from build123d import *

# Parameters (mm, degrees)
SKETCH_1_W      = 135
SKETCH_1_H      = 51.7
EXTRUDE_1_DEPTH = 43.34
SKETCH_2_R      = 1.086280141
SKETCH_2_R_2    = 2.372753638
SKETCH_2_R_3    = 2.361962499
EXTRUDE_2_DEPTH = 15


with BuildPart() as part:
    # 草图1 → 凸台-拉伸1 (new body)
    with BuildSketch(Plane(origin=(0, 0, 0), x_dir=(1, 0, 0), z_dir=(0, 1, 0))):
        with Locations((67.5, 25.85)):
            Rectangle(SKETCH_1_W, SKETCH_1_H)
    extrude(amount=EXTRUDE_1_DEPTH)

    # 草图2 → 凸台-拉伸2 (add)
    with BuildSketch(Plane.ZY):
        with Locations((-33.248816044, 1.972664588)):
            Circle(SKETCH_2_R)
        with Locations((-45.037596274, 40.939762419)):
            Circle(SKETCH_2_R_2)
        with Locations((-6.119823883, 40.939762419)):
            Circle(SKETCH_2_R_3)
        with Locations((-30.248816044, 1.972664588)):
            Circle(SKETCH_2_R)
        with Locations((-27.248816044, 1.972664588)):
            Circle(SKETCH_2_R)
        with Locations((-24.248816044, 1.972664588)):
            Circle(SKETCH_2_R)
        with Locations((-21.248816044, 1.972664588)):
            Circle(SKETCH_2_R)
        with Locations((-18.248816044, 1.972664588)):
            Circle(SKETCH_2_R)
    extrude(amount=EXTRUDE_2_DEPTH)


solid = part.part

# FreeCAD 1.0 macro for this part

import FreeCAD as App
import Part
import Sketcher
from FreeCAD import Vector


def add_polygon(sketch, points):
    """Adds a closed chain of lines whose ends are joined by coincident constraints."""
    first, n = sketch.GeometryCount, len(points)
    for a, b in zip(points, points[1:] + points[:1]):
        sketch.addGeometry(Part.LineSegment(App.Vector(*a, 0), App.Vector(*b, 0)), False)
    for i in range(n):
        sketch.addConstraint(Sketcher.Constraint("Coincident", first + i, 2, first + (i + 1) % n, 1))

doc = App.newDocument("Part")
body = doc.addObject("PartDesign::Body", "Body")

sketch1 = doc.addObject("Sketcher::SketchObject", "Sketch")
body.addObject(sketch1)
sketch1.AttachmentSupport = (doc.XZ_Plane, [""])
sketch1.MapMode = "FlatFace"
add_polygon(sketch1, [(0, -51.7), (0, 0), (135, 0), (135, -51.7)])
sketch1.addConstraint([
    Sketcher.Constraint("Vertical", 0),
    Sketcher.Constraint("Horizontal", 1),
    Sketcher.Constraint("Vertical", 2),
    Sketcher.Constraint("Horizontal", 3),
    Sketcher.Constraint("Coincident", 0, 2, -1, 1),
    Sketcher.Constraint("DistanceX", 1, 1, 1, 2, 135.0),
    Sketcher.Constraint("DistanceY", 0, 1, 0, 2, 51.7),
])
pad1 = doc.addObject("PartDesign::Pad", "Pad")
body.addObject(pad1)
pad1.Profile = sketch1
pad1.Length = 43.34
pad1.Reversed = True

sketch2 = doc.addObject("Sketcher::SketchObject", "Sketch001")
body.addObject(sketch2)
sketch2.AttachmentSupport = (doc.YZ_Plane, [""])
sketch2.MapMode = "FlatFace"
sketch2.addGeometry([
    Part.Circle(Vector(1.972665, -33.248816, 0), Vector(0, 0, 1), 1.08628),
    Part.Circle(Vector(40.939762, -45.037596, 0), Vector(0, 0, 1), 2.372754),
    Part.Circle(Vector(40.939762, -6.119824, 0), Vector(0, 0, 1), 2.361962),
    Part.Circle(Vector(1.972665, -30.248816, 0), Vector(0, 0, 1), 1.08628),
    Part.Circle(Vector(1.972665, -27.248816, 0), Vector(0, 0, 1), 1.08628),
    Part.Circle(Vector(1.972665, -24.248816, 0), Vector(0, 0, 1), 1.08628),
    Part.Circle(Vector(1.972665, -21.248816, 0), Vector(0, 0, 1), 1.08628),
    Part.Circle(Vector(1.972665, -18.248816, 0), Vector(0, 0, 1), 1.08628),
], False)
sketch2.addConstraint([
    Sketcher.Constraint("Equal", 0, 3),
    Sketcher.Constraint("Equal", 3, 4),
    Sketcher.Constraint("Equal", 4, 5),
    Sketcher.Constraint("Equal", 5, 6),
    Sketcher.Constraint("Equal", 6, 7),
    Sketcher.Constraint("Vertical", 1, 3, 2, 3),
    Sketcher.Constraint("Vertical", 0, 3, 3, 3),
    Sketcher.Constraint("Vertical", 3, 3, 4, 3),
    Sketcher.Constraint("Vertical", 4, 3, 5, 3),
    Sketcher.Constraint("Vertical", 5, 3, 6, 3),
    Sketcher.Constraint("Vertical", 6, 3, 7, 3),
    Sketcher.Constraint("DistanceY", 0, 3, 3, 3, 3.0),
    Sketcher.Constraint("DistanceY", 3, 3, 4, 3, 3.0),
    Sketcher.Constraint("DistanceY", 4, 3, 5, 3, 3.0),
    Sketcher.Constraint("DistanceY", 5, 3, 6, 3, 3.0),
    Sketcher.Constraint("DistanceY", 6, 3, 7, 3, 3.0),
    Sketcher.Constraint("Diameter", 0, 2.17256),
    Sketcher.Constraint("Diameter", 1, 4.745507),
    Sketcher.Constraint("Diameter", 2, 4.723925),
    Sketcher.Constraint("DistanceY", 1, 3, 0, 3, 11.78878),
    Sketcher.Constraint("DistanceX", -1, 1, 0, 3, 1.972665),
    Sketcher.Constraint("DistanceY", 0, 3, -1, 1, 33.248816),
    Sketcher.Constraint("DistanceX", -1, 1, 1, 3, 40.939762),
    Sketcher.Constraint("DistanceY", 2, 3, -1, 1, 6.119824),
])
pad2 = doc.addObject("PartDesign::Pad", "Pad001")
body.addObject(pad2)
pad2.Profile = sketch2
pad2.Length = 15
pad2.Reversed = True

doc.recompute()
